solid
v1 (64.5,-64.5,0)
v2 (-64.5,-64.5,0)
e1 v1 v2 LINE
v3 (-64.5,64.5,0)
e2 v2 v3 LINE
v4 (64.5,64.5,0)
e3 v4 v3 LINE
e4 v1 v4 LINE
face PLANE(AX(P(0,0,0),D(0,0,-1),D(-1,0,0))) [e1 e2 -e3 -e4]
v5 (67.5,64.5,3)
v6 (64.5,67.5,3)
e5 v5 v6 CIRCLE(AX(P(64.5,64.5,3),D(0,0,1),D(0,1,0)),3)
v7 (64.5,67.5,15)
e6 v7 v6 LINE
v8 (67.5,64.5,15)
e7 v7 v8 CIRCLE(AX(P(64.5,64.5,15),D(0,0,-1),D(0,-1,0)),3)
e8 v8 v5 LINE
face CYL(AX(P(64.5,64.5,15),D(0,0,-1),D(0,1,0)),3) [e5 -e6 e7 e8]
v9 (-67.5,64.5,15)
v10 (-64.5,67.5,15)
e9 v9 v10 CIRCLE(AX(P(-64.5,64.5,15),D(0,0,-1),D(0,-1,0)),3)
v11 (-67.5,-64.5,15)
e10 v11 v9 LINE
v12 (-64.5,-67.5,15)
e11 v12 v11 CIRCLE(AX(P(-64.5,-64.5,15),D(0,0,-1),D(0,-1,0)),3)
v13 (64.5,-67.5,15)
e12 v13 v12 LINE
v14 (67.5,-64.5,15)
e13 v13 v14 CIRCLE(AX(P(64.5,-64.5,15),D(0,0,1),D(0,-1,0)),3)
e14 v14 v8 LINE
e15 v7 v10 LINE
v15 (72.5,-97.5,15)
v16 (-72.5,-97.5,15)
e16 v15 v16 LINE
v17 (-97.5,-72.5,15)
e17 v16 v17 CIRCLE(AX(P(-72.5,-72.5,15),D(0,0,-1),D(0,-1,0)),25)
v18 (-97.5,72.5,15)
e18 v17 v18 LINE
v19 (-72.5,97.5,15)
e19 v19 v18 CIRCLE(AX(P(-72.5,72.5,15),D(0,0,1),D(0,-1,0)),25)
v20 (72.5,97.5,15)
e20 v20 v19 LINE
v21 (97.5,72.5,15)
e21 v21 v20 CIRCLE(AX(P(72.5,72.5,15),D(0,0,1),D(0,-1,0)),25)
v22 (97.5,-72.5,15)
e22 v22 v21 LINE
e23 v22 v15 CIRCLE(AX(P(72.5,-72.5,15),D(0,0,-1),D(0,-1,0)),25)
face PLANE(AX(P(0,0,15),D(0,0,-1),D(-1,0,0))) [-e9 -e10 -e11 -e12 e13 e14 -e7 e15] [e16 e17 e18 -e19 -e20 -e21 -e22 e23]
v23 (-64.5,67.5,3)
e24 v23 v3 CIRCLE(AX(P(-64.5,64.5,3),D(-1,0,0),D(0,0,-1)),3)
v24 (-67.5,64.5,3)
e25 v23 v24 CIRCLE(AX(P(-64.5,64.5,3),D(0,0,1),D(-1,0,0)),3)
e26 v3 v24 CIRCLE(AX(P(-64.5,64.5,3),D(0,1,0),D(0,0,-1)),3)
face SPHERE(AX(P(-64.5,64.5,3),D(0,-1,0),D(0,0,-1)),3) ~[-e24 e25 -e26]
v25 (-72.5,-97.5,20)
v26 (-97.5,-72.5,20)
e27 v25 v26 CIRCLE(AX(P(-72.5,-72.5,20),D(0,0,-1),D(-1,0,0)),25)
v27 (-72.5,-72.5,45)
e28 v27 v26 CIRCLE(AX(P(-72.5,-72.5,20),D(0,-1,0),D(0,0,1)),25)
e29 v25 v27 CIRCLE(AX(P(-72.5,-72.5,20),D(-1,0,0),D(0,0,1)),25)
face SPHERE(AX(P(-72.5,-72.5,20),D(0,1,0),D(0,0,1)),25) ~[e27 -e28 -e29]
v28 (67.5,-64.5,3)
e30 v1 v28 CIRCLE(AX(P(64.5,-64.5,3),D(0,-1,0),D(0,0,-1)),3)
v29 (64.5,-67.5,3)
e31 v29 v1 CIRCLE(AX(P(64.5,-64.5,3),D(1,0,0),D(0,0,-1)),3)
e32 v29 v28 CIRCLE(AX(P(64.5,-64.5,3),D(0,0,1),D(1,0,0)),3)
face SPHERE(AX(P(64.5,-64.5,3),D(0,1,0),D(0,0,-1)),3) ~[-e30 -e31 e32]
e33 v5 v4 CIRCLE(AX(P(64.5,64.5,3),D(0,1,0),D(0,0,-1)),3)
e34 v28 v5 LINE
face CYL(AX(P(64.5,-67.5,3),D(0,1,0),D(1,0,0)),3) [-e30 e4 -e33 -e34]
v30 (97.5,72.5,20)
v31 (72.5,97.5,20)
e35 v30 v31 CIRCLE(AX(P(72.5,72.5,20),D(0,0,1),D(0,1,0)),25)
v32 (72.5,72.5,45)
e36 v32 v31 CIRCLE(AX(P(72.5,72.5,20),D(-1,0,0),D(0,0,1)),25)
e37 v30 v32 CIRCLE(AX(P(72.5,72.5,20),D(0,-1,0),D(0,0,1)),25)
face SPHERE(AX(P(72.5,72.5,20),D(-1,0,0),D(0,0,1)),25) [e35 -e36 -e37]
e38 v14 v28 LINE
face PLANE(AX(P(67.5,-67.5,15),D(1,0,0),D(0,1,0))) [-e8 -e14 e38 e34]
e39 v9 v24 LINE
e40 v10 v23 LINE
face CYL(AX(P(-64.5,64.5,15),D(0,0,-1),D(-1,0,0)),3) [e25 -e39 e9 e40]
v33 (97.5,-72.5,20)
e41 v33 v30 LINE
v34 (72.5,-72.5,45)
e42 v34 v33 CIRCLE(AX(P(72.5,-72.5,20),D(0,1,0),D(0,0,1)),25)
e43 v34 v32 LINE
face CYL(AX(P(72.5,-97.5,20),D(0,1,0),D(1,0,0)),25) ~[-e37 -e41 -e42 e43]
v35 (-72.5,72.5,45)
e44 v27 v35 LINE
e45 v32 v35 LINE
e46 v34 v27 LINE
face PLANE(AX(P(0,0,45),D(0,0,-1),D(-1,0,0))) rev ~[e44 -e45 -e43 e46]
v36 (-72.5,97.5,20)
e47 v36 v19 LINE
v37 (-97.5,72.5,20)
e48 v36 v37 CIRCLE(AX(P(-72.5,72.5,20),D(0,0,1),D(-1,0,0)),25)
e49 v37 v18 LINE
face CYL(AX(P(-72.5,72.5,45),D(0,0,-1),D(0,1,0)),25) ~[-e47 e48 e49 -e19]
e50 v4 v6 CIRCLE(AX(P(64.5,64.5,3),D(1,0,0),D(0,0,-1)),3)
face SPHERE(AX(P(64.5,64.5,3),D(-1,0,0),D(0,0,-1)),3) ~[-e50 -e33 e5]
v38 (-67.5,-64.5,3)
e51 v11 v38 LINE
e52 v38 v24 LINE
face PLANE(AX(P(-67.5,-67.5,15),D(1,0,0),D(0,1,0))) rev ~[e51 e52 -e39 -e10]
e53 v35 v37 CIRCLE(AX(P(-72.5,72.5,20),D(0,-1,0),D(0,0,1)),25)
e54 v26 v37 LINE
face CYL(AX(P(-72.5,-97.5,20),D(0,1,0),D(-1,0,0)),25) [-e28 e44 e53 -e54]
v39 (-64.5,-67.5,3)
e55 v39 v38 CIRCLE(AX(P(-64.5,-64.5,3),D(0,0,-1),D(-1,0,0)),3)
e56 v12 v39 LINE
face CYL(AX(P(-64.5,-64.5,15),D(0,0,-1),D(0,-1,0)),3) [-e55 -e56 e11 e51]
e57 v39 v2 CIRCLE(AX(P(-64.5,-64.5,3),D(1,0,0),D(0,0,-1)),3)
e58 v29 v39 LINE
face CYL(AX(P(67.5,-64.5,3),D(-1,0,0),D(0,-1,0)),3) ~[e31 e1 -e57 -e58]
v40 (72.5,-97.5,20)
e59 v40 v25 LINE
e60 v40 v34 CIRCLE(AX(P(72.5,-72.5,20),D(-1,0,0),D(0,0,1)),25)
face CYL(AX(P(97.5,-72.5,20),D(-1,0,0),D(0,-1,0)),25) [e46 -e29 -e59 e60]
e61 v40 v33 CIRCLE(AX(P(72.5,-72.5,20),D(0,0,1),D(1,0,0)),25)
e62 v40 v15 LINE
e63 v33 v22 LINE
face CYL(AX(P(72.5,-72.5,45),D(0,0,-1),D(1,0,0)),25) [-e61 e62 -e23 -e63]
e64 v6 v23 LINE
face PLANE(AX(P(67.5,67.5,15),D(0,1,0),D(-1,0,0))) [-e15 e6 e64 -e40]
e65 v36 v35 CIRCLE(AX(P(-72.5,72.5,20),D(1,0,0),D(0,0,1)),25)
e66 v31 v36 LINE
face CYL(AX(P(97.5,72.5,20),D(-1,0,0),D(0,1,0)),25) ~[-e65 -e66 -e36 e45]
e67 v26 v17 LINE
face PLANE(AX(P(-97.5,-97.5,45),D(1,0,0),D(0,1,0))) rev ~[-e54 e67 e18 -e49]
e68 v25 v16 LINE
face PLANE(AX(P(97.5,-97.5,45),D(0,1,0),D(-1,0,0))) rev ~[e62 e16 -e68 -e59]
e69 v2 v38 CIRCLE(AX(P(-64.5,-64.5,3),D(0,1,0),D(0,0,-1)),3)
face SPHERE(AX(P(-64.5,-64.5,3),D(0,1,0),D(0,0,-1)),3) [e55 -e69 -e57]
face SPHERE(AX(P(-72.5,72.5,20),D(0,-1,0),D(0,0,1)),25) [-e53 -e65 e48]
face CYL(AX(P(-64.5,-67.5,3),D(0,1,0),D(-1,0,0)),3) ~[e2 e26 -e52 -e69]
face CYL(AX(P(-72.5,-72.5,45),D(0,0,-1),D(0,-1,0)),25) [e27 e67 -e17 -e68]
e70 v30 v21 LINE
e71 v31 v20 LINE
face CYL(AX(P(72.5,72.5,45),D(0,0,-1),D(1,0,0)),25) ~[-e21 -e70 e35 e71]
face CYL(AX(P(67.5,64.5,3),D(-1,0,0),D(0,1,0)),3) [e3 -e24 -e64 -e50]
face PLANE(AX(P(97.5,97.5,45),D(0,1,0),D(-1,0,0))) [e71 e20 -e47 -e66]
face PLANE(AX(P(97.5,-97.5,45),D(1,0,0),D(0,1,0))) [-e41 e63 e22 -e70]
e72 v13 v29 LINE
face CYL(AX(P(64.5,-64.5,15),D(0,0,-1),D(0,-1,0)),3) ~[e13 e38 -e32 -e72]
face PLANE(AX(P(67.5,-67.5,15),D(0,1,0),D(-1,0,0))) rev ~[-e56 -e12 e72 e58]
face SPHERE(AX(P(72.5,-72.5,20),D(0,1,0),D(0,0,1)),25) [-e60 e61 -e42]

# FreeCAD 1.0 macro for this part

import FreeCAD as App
import Part
import Sketcher
from FreeCAD import Vector
Q = App.Units.Quantity


def edges_at(feature, points):
    """Names of the edges that pass closest to the given points."""
    edges = feature.Shape.Edges
    near = lambda p: min(range(len(edges)), key=lambda i: edges[i].distToShape(Part.Vertex(*p))[0])
    return sorted({f"Edge{near(p) + 1}" for p in points})


def add_polygon(sketch, points):
    """Adds a closed chain of lines whose ends are joined by coincident constraints."""
    first, n = sketch.GeometryCount, len(points)
    for a, b in zip(points, points[1:] + points[:1]):
        sketch.addGeometry(Part.LineSegment(App.Vector(*a, 0), App.Vector(*b, 0)), False)
    for i in range(n):
        sketch.addConstraint(Sketcher.Constraint("Coincident", first + i, 2, first + (i + 1) % n, 1))

doc = App.newDocument("Part")
body = doc.addObject("PartDesign::Body", "Body")

sketch1 = body.newObject("Sketcher::SketchObject", "Sketch")
sketch1.AttachmentSupport = (doc.getObject("XY_Plane"), [""])
sketch1.MapMode = "FlatFace"
add_polygon(sketch1, [(-98, 98), (-98, -98), (98, -98), (98, 98)])
sketch1.addConstraint(Sketcher.Constraint("Vertical", 0))
sketch1.addConstraint(Sketcher.Constraint("Horizontal", 1))
sketch1.addConstraint(Sketcher.Constraint("Vertical", 2))
sketch1.addConstraint(Sketcher.Constraint("Horizontal", 3))
sketch1.addConstraint(Sketcher.Constraint("Symmetric", 0, 2, 2, 2, -1, 1))
sketch1.addConstraint(Sketcher.Constraint("Equal", 3, 0))
sketch1.addConstraint(Sketcher.Constraint("DistanceX", 1, 1, 1, 2, Q("195 mm")))
pad1 = body.newObject("PartDesign::Pad", "Pad")
pad1.Profile = sketch1
pad1.Length = 30

sketch2 = body.newObject("Sketcher::SketchObject", "Sketch001")
sketch2.AttachmentSupport = (doc.getObject("XY_Plane"), [""])
sketch2.MapMode = "FlatFace"
sketch2.AttachmentOffset = App.Placement(Vector(0, 0, 30), App.Rotation())
add_polygon(sketch2, [(-68, 68), (-68, -68), (68, -68), (68, 68)])
sketch2.addConstraint(Sketcher.Constraint("Vertical", 0))
sketch2.addConstraint(Sketcher.Constraint("Horizontal", 1))
sketch2.addConstraint(Sketcher.Constraint("Vertical", 2))
sketch2.addConstraint(Sketcher.Constraint("Horizontal", 3))
sketch2.addConstraint(Sketcher.Constraint("Symmetric", 0, 2, 2, 2, -1, 1))
sketch2.addConstraint(Sketcher.Constraint("Equal", 3, 0))
sketch2.addConstraint(Sketcher.Constraint("DistanceX", 1, 1, 1, 2, Q("135 mm")))
pad2 = body.newObject("PartDesign::Pad", "Pad001")
pad2.Profile = sketch2
pad2.Length = 15
doc.recompute()

fillet = body.newObject("PartDesign::Fillet", "Fillet")
fillet.Base = (pad2, edges_at(pad2, [
    (67.5, 0, 45),
    (0, 67.5, 45),
    (-67.5, 0, 45),
    (0, -67.5, 45),
    (67.5, -67.5, 37.5),
    (67.5, 67.5, 37.5),
    (-67.5, -67.5, 37.5),
    (-67.5, 67.5, 37.5),
]))
fillet.Radius = 3
doc.recompute()

fillet2 = body.newObject("PartDesign::Fillet", "Fillet001")
fillet2.Base = (fillet, edges_at(fillet, [
    (97.5, 0, 0),
    (0, 97.5, 0),
    (-97.5, 0, 0),
    (0, -97.5, 0),
    (97.5, 97.5, 15),
    (-97.5, 97.5, 15),
    (-97.5, -97.5, 15),
    (97.5, -97.5, 15),
]))
fillet2.Radius = 25
body2 = doc.addObject("PartDesign::Body", "Body001")
doc.recompute()

body.Placement = App.Placement(Vector(195, 0, 60), App.Rotation(Vector(0, -1, 0), 180))
boolean = body2.newObject("PartDesign::Boolean", "Boolean")
boolean.Type = "Fuse"
boolean.addObjects([body])
body3 = doc.addObject("PartDesign::Body", "Body002")
doc.recompute()

body2.Placement = App.Placement(Vector(-195, 0, 0), App.Rotation(Vector(0, 0, 1), 0))
boolean2 = body3.newObject("PartDesign::Boolean", "Boolean001")
boolean2.Type = "Fuse"
boolean2.addObjects([body2])
body4 = doc.addObject("PartDesign::Body", "Body003")
doc.recompute()

body3.Placement = App.Placement(Vector(0, 0, -15), App.Rotation(Vector(0, 0, 1), 0))
boolean3 = body4.newObject("PartDesign::Boolean", "Boolean002")
boolean3.Type = "Fuse"
boolean3.addObjects([body3])

doc.recompute()
